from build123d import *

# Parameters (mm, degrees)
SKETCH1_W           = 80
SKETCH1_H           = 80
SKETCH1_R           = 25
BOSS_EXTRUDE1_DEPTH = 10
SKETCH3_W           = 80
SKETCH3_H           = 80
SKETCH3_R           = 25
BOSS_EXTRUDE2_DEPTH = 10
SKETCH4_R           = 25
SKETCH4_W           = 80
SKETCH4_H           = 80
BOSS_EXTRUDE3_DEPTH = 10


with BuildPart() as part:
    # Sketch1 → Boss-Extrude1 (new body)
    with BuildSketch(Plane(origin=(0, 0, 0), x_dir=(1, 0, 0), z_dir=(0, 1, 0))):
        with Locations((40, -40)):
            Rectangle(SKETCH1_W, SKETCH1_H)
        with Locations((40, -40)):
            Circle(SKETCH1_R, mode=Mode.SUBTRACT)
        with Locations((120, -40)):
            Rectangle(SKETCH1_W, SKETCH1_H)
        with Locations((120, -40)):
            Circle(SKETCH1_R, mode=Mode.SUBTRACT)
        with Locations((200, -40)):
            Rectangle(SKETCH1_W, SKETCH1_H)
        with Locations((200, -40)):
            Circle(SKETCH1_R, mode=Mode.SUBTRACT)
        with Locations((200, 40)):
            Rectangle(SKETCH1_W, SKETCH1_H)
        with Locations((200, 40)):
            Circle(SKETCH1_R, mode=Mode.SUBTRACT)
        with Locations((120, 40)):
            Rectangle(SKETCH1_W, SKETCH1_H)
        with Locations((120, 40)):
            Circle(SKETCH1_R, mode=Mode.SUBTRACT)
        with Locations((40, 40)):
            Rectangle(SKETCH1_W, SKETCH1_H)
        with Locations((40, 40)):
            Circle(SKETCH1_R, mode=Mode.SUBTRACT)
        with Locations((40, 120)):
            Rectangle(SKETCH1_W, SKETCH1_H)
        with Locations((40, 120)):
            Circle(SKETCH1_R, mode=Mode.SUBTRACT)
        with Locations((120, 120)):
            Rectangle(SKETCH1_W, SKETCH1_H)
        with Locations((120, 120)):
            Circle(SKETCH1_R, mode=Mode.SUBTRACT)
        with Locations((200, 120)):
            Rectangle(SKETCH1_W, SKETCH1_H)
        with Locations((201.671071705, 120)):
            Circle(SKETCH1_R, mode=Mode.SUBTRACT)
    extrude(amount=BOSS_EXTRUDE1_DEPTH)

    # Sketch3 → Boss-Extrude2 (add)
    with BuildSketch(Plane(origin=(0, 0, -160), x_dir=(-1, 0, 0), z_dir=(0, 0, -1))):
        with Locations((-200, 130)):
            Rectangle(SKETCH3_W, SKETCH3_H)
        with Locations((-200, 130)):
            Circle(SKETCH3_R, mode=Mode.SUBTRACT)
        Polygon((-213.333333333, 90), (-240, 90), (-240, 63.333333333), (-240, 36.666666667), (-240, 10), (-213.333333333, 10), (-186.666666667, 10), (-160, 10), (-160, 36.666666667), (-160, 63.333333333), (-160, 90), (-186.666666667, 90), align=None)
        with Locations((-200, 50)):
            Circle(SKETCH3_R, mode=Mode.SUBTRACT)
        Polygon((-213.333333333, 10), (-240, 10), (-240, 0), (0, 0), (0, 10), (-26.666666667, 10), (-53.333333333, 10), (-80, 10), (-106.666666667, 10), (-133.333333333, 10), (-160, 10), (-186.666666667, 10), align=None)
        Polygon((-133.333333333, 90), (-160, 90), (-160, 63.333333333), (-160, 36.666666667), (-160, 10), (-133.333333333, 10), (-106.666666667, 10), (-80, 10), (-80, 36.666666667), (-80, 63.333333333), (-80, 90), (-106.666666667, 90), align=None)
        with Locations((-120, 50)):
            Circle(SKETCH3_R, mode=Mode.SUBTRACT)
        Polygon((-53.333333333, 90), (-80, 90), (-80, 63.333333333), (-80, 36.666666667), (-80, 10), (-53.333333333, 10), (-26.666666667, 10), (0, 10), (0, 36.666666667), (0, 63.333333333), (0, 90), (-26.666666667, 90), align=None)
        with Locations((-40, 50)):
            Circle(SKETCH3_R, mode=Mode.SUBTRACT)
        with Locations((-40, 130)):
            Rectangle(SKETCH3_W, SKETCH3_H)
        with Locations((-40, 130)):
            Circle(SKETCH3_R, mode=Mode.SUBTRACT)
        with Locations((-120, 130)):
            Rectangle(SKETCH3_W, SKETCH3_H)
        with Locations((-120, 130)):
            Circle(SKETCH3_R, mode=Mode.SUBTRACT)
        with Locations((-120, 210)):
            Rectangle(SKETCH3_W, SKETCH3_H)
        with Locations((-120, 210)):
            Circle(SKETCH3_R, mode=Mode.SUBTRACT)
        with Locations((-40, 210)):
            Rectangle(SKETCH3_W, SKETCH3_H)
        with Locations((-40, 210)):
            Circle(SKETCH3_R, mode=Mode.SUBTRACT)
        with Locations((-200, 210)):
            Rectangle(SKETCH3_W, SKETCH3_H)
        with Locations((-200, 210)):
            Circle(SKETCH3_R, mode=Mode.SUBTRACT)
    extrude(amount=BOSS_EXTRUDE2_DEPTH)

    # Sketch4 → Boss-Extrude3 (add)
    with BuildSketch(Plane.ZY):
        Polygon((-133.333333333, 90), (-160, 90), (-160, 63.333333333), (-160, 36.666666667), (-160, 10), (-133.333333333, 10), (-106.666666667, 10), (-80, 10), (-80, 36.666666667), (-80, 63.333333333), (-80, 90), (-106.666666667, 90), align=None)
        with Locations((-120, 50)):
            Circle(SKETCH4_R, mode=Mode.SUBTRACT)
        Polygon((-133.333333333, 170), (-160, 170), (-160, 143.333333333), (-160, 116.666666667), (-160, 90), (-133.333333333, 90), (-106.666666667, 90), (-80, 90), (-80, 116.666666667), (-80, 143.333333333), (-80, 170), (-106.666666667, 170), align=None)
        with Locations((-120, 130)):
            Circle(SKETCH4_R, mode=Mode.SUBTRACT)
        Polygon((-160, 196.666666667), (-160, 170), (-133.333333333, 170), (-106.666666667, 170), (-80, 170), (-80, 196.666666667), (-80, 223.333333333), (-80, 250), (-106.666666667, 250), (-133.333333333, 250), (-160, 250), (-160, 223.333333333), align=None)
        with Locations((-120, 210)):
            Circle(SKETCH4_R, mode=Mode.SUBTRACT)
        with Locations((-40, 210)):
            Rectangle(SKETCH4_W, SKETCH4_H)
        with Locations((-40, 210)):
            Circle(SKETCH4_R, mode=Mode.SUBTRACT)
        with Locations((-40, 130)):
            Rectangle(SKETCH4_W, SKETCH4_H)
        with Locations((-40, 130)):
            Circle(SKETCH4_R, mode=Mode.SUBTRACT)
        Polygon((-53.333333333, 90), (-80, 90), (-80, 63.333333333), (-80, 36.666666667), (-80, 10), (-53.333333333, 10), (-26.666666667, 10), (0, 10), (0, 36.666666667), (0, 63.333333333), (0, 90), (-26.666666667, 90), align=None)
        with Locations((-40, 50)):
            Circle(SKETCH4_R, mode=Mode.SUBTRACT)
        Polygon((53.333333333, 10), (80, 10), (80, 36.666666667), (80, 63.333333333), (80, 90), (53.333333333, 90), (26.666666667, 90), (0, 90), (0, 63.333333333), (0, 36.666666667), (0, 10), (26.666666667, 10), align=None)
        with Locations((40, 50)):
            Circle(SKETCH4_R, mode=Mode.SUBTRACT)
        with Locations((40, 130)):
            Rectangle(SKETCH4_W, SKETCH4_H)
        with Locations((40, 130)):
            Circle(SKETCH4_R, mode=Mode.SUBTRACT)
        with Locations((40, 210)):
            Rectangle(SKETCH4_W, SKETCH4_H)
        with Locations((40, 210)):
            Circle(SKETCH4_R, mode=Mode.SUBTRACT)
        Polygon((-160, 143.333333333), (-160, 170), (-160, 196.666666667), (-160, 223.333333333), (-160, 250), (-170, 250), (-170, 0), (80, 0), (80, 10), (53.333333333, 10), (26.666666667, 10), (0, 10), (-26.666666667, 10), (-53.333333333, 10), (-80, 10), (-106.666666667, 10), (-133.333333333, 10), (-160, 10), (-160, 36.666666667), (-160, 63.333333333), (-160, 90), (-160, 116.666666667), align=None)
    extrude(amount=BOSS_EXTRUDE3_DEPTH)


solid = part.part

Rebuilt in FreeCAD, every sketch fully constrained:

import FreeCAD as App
import Part
import Sketcher
Q = App.Units.Quantity


def add_polygon(sketch, points):
    """Adds a closed chain of lines whose ends are joined by coincident constraints."""
    first, n = sketch.GeometryCount, len(points)
    for a, b in zip(points, points[1:] + points[:1]):
        sketch.addGeometry(Part.LineSegment(App.Vector(*a, 0), App.Vector(*b, 0)), False)
    for i in range(n):
        sketch.addConstraint(Sketcher.Constraint("Coincident", first + i, 2, first + (i + 1) % n, 1))

doc = App.newDocument("Part")
params = doc.addObject("Spreadsheet::Sheet", "Params")
for row, (alias, value) in enumerate([
    ("sketch1_diameter", "50 mm"),
    ("sketch1_width", "240 mm"),
    ("pad1_length", "10 mm"),
    ("sketch2_diameter", "50 mm"),
    ("sketch2_width", "240 mm"),
    ("sketch2_height", "250 mm"),
    ("pad2_length", "10 mm"),
    ("sketch3_diameter", "50 mm"),
    ("sketch3_width", "250 mm"),
    ("pad3_length", "10 mm"),
], start=1):
    params.set(f"A{row}", alias)
    params.set(f"B{row}", "=" + value)
    params.setAlias(f"B{row}", alias)

body = doc.addObject("PartDesign::Body", "Body")

# Sketch on XZ plane
sketch1 = body.newObject("Sketcher::SketchObject", "Sketch")
sketch1.AttachmentSupport = (doc.getObject("XZ_Plane"), [""])
sketch1.MapMode = "FlatFace"
add_polygon(sketch1, [(0, 80), (240, 80), (240, -160), (0, -160)])  # lines 0-3
sketch1.addGeometry(Part.Circle(App.Vector(40, 40, 0), App.Vector(0, 0, 1), 25), False)  # 4
sketch1.addGeometry(Part.Circle(App.Vector(120, 40, 0), App.Vector(0, 0, 1), 25), False)  # 5
sketch1.addGeometry(Part.Circle(App.Vector(200, 40, 0), App.Vector(0, 0, 1), 25), False)  # 6
sketch1.addGeometry(Part.Circle(App.Vector(40, -40, 0), App.Vector(0, 0, 1), 25), False)  # 7
sketch1.addGeometry(Part.Circle(App.Vector(120, -40, 0), App.Vector(0, 0, 1), 25), False)  # 8
sketch1.addGeometry(Part.Circle(App.Vector(40, -120, 0), App.Vector(0, 0, 1), 25), False)  # 9
sketch1.addGeometry(Part.Circle(App.Vector(120, -120, 0), App.Vector(0, 0, 1), 25), False)  # 10
sketch1.addGeometry(Part.Circle(App.Vector(200, -40, 0), App.Vector(0, 0, 1), 25), False)  # 11
sketch1.addGeometry(Part.Circle(App.Vector(202, -120, 0), App.Vector(0, 0, 1), 25), False)  # 12
sketch1.addConstraint([
    Sketcher.Constraint("Horizontal", 0),
    Sketcher.Constraint("Vertical", 1),
    Sketcher.Constraint("Horizontal", 2),
    Sketcher.Constraint("Vertical", 3),
    Sketcher.Constraint("Equal", 4, 5),
    Sketcher.Constraint("Equal", 5, 6),
    Sketcher.Constraint("Equal", 6, 7),
    Sketcher.Constraint("Equal", 7, 8),
    Sketcher.Constraint("Equal", 8, 9),
    Sketcher.Constraint("Equal", 9, 10),
    Sketcher.Constraint("Equal", 10, 11),
    Sketcher.Constraint("Equal", 11, 12),
    Sketcher.Constraint("Symmetric", 4, 3, 7, 3, -1),
    Sketcher.Constraint("Symmetric", 5, 3, 8, 3, -1),
    Sketcher.Constraint("Symmetric", 6, 3, 11, 3, -1),
    Sketcher.Constraint("PointOnObject", 2, 2, -2),
    Sketcher.Constraint("Horizontal", 4, 3, 5, 3),
    Sketcher.Constraint("Horizontal", 5, 3, 6, 3),
    Sketcher.Constraint("Horizontal", 9, 3, 10, 3),
    Sketcher.Constraint("Horizontal", 10, 3, 12, 3),
    Sketcher.Constraint("Vertical", 7, 3, 9, 3),
    Sketcher.Constraint("Vertical", 8, 3, 10, 3),
    Sketcher.Constraint("Equal", 2, 1),
    Sketcher.Constraint("Diameter", 4, Q("50 mm")),
    Sketcher.Constraint("DistanceX", 0, 1, 0, 2, Q("240 mm")),
    Sketcher.Constraint("DistanceX", -1, 1, 4, 3, Q("40 mm")),
    Sketcher.Constraint("DistanceY", -1, 1, 4, 3, Q("40 mm")),
    Sketcher.Constraint("DistanceX", -1, 1, 5, 3, Q("120 mm")),
    Sketcher.Constraint("DistanceX", -1, 1, 6, 3, Q("200 mm")),
    Sketcher.Constraint("DistanceY", 9, 3, -1, 1, Q("120 mm")),
    Sketcher.Constraint("DistanceY", -1, 1, 0, 2, Q("80 mm")),
    Sketcher.Constraint("DistanceX", -1, 1, 12, 3, Q("201.671072 mm")),
])
sketch1.setExpression("Constraints[27]", "Params.sketch1_diameter")
sketch1.setExpression("Constraints[28]", "Params.sketch1_width")
pad1 = body.newObject("PartDesign::Pad", "Pad")
pad1.Profile = sketch1
pad1.setExpression("Length", "Params.pad1_length")
pad1.Reversed = True

# Sketch on XY plane
sketch2 = body.newObject("Sketcher::SketchObject", "Sketch001")
sketch2.AttachmentSupport = (doc.getObject("XY_Plane"), [""])
sketch2.MapMode = "FlatFace"
sketch2.AttachmentOffset = App.Placement(App.Vector(0, 0, -160), App.Rotation())
add_polygon(sketch2, [(240, 0), (0, 0), (0, 250), (240, 250)])  # lines 0-3
sketch2.addGeometry(Part.Circle(App.Vector(200, 50, 0), App.Vector(0, 0, 1), 25), False)  # 4
sketch2.addGeometry(Part.Circle(App.Vector(120, 50, 0), App.Vector(0, 0, 1), 25), False)  # 5
sketch2.addGeometry(Part.Circle(App.Vector(40, 50, 0), App.Vector(0, 0, 1), 25), False)  # 6
sketch2.addGeometry(Part.Circle(App.Vector(200, 130, 0), App.Vector(0, 0, 1), 25), False)  # 7
sketch2.addGeometry(Part.Circle(App.Vector(200, 210, 0), App.Vector(0, 0, 1), 25), False)  # 8
sketch2.addGeometry(Part.Circle(App.Vector(120, 130, 0), App.Vector(0, 0, 1), 25), False)  # 9
sketch2.addGeometry(Part.Circle(App.Vector(40, 130, 0), App.Vector(0, 0, 1), 25), False)  # 10
sketch2.addGeometry(Part.Circle(App.Vector(120, 210, 0), App.Vector(0, 0, 1), 25), False)  # 11
sketch2.addGeometry(Part.Circle(App.Vector(40, 210, 0), App.Vector(0, 0, 1), 25), False)  # 12
sketch2.addConstraint([
    Sketcher.Constraint("Horizontal", 0),
    Sketcher.Constraint("Vertical", 1),
    Sketcher.Constraint("Horizontal", 2),
    Sketcher.Constraint("Vertical", 3),
    Sketcher.Constraint("Coincident", 0, 2, -1, 1),
    Sketcher.Constraint("Equal", 4, 5),
    Sketcher.Constraint("Equal", 5, 6),
    Sketcher.Constraint("Equal", 6, 7),
    Sketcher.Constraint("Equal", 7, 8),
    Sketcher.Constraint("Equal", 8, 9),
    Sketcher.Constraint("Equal", 9, 10),
    Sketcher.Constraint("Equal", 10, 11),
    Sketcher.Constraint("Equal", 11, 12),
    Sketcher.Constraint("Horizontal", 4, 3, 5, 3),
    Sketcher.Constraint("Horizontal", 5, 3, 6, 3),
    Sketcher.Constraint("Horizontal", 7, 3, 9, 3),
    Sketcher.Constraint("Horizontal", 9, 3, 10, 3),
    Sketcher.Constraint("Horizontal", 8, 3, 11, 3),
    Sketcher.Constraint("Horizontal", 11, 3, 12, 3),
    Sketcher.Constraint("Vertical", 4, 3, 7, 3),
    Sketcher.Constraint("Vertical", 7, 3, 8, 3),
    Sketcher.Constraint("Vertical", 5, 3, 9, 3),
    Sketcher.Constraint("Vertical", 6, 3, 10, 3),
    Sketcher.Constraint("Vertical", 9, 3, 11, 3),
    Sketcher.Constraint("Vertical", 10, 3, 12, 3),
    Sketcher.Constraint("Diameter", 4, Q("50 mm")),
    Sketcher.Constraint("DistanceX", 0, 2, 0, 1, Q("240 mm")),
    Sketcher.Constraint("DistanceY", 1, 1, 1, 2, Q("250 mm")),
    Sketcher.Constraint("DistanceX", -1, 1, 4, 3, Q("200 mm")),
    Sketcher.Constraint("DistanceY", -1, 1, 4, 3, Q("50 mm")),
    Sketcher.Constraint("DistanceX", -1, 1, 5, 3, Q("120 mm")),
    Sketcher.Constraint("DistanceX", -1, 1, 6, 3, Q("40 mm")),
    Sketcher.Constraint("DistanceY", -1, 1, 7, 3, Q("130 mm")),
    Sketcher.Constraint("DistanceY", -1, 1, 8, 3, Q("210 mm")),
])
sketch2.setExpression("Constraints[29]", "Params.sketch2_diameter")
sketch2.setExpression("Constraints[30]", "Params.sketch2_width")
sketch2.setExpression("Constraints[31]", "Params.sketch2_height")
pad2 = body.newObject("PartDesign::Pad", "Pad001")
pad2.Profile = sketch2
pad2.setExpression("Length", "Params.pad2_length")
pad2.Reversed = True

# Sketch on YZ plane
sketch3 = body.newObject("Sketcher::SketchObject", "Sketch002")
sketch3.AttachmentSupport = (doc.getObject("YZ_Plane"), [""])
sketch3.MapMode = "FlatFace"
add_polygon(sketch3, [(250, 80), (250, -170), (0, -170), (0, 80)])  # lines 0-3
sketch3.addGeometry(Part.Circle(App.Vector(50, -120, 0), App.Vector(0, 0, 1), 25), False)  # 4
sketch3.addGeometry(Part.Circle(App.Vector(50, -40, 0), App.Vector(0, 0, 1), 25), False)  # 5
sketch3.addGeometry(Part.Circle(App.Vector(50, 40, 0), App.Vector(0, 0, 1), 25), False)  # 6
sketch3.addGeometry(Part.Circle(App.Vector(130, -120, 0), App.Vector(0, 0, 1), 25), False)  # 7
sketch3.addGeometry(Part.Circle(App.Vector(210, -120, 0), App.Vector(0, 0, 1), 25), False)  # 8
sketch3.addGeometry(Part.Circle(App.Vector(130, -40, 0), App.Vector(0, 0, 1), 25), False)  # 9
sketch3.addGeometry(Part.Circle(App.Vector(130, 40, 0), App.Vector(0, 0, 1), 25), False)  # 10
sketch3.addGeometry(Part.Circle(App.Vector(210, -40, 0), App.Vector(0, 0, 1), 25), False)  # 11
sketch3.addGeometry(Part.Circle(App.Vector(210, 40, 0), App.Vector(0, 0, 1), 25), False)  # 12
sketch3.addConstraint([
    Sketcher.Constraint("Vertical", 0),
    Sketcher.Constraint("Horizontal", 1),
    Sketcher.Constraint("Vertical", 2),
    Sketcher.Constraint("Horizontal", 3),
    Sketcher.Constraint("Equal", 4, 5),
    Sketcher.Constraint("Equal", 5, 6),
    Sketcher.Constraint("Equal", 6, 7),
    Sketcher.Constraint("Equal", 7, 8),
    Sketcher.Constraint("Equal", 8, 9),
    Sketcher.Constraint("Equal", 9, 10),
    Sketcher.Constraint("Equal", 10, 11),
    Sketcher.Constraint("Equal", 11, 12),
    Sketcher.Constraint("Symmetric", 5, 3, 6, 3, -1),
    Sketcher.Constraint("Symmetric", 9, 3, 10, 3, -1),
    Sketcher.Constraint("Symmetric", 11, 3, 12, 3, -1),
    Sketcher.Constraint("PointOnObject", 1, 2, -2),
    Sketcher.Constraint("Horizontal", 4, 3, 7, 3),
    Sketcher.Constraint("Horizontal", 7, 3, 8, 3),
    Sketcher.Constraint("Horizontal", 5, 3, 9, 3),
    Sketcher.Constraint("Horizontal", 9, 3, 11, 3),
    Sketcher.Constraint("Vertical", 4, 3, 5, 3),
    Sketcher.Constraint("Vertical", 7, 3, 9, 3),
    Sketcher.Constraint("Vertical", 8, 3, 11, 3),
    Sketcher.Constraint("Equal", 3, 0),
    Sketcher.Constraint("Diameter", 4, Q("50 mm")),
    Sketcher.Constraint("DistanceX", 1, 2, 1, 1, Q("250 mm")),
    Sketcher.Constraint("DistanceX", -1, 1, 4, 3, Q("50 mm")),
    Sketcher.Constraint("DistanceY", 4, 3, -1, 1, Q("120 mm")),
    Sketcher.Constraint("DistanceY", 5, 3, -1, 1, Q("40 mm")),
    Sketcher.Constraint("DistanceX", -1, 1, 7, 3, Q("130 mm")),
    Sketcher.Constraint("DistanceX", -1, 1, 8, 3, Q("210 mm")),
    Sketcher.Constraint("DistanceY", 0, 2, -1, 1, Q("170 mm")),
])
sketch3.setExpression("Constraints[28]", "Params.sketch3_diameter")
sketch3.setExpression("Constraints[29]", "Params.sketch3_width")
pad3 = body.newObject("PartDesign::Pad", "Pad002")
pad3.Profile = sketch3
pad3.setExpression("Length", "Params.pad3_length")
pad3.Reversed = True

doc.recompute()
